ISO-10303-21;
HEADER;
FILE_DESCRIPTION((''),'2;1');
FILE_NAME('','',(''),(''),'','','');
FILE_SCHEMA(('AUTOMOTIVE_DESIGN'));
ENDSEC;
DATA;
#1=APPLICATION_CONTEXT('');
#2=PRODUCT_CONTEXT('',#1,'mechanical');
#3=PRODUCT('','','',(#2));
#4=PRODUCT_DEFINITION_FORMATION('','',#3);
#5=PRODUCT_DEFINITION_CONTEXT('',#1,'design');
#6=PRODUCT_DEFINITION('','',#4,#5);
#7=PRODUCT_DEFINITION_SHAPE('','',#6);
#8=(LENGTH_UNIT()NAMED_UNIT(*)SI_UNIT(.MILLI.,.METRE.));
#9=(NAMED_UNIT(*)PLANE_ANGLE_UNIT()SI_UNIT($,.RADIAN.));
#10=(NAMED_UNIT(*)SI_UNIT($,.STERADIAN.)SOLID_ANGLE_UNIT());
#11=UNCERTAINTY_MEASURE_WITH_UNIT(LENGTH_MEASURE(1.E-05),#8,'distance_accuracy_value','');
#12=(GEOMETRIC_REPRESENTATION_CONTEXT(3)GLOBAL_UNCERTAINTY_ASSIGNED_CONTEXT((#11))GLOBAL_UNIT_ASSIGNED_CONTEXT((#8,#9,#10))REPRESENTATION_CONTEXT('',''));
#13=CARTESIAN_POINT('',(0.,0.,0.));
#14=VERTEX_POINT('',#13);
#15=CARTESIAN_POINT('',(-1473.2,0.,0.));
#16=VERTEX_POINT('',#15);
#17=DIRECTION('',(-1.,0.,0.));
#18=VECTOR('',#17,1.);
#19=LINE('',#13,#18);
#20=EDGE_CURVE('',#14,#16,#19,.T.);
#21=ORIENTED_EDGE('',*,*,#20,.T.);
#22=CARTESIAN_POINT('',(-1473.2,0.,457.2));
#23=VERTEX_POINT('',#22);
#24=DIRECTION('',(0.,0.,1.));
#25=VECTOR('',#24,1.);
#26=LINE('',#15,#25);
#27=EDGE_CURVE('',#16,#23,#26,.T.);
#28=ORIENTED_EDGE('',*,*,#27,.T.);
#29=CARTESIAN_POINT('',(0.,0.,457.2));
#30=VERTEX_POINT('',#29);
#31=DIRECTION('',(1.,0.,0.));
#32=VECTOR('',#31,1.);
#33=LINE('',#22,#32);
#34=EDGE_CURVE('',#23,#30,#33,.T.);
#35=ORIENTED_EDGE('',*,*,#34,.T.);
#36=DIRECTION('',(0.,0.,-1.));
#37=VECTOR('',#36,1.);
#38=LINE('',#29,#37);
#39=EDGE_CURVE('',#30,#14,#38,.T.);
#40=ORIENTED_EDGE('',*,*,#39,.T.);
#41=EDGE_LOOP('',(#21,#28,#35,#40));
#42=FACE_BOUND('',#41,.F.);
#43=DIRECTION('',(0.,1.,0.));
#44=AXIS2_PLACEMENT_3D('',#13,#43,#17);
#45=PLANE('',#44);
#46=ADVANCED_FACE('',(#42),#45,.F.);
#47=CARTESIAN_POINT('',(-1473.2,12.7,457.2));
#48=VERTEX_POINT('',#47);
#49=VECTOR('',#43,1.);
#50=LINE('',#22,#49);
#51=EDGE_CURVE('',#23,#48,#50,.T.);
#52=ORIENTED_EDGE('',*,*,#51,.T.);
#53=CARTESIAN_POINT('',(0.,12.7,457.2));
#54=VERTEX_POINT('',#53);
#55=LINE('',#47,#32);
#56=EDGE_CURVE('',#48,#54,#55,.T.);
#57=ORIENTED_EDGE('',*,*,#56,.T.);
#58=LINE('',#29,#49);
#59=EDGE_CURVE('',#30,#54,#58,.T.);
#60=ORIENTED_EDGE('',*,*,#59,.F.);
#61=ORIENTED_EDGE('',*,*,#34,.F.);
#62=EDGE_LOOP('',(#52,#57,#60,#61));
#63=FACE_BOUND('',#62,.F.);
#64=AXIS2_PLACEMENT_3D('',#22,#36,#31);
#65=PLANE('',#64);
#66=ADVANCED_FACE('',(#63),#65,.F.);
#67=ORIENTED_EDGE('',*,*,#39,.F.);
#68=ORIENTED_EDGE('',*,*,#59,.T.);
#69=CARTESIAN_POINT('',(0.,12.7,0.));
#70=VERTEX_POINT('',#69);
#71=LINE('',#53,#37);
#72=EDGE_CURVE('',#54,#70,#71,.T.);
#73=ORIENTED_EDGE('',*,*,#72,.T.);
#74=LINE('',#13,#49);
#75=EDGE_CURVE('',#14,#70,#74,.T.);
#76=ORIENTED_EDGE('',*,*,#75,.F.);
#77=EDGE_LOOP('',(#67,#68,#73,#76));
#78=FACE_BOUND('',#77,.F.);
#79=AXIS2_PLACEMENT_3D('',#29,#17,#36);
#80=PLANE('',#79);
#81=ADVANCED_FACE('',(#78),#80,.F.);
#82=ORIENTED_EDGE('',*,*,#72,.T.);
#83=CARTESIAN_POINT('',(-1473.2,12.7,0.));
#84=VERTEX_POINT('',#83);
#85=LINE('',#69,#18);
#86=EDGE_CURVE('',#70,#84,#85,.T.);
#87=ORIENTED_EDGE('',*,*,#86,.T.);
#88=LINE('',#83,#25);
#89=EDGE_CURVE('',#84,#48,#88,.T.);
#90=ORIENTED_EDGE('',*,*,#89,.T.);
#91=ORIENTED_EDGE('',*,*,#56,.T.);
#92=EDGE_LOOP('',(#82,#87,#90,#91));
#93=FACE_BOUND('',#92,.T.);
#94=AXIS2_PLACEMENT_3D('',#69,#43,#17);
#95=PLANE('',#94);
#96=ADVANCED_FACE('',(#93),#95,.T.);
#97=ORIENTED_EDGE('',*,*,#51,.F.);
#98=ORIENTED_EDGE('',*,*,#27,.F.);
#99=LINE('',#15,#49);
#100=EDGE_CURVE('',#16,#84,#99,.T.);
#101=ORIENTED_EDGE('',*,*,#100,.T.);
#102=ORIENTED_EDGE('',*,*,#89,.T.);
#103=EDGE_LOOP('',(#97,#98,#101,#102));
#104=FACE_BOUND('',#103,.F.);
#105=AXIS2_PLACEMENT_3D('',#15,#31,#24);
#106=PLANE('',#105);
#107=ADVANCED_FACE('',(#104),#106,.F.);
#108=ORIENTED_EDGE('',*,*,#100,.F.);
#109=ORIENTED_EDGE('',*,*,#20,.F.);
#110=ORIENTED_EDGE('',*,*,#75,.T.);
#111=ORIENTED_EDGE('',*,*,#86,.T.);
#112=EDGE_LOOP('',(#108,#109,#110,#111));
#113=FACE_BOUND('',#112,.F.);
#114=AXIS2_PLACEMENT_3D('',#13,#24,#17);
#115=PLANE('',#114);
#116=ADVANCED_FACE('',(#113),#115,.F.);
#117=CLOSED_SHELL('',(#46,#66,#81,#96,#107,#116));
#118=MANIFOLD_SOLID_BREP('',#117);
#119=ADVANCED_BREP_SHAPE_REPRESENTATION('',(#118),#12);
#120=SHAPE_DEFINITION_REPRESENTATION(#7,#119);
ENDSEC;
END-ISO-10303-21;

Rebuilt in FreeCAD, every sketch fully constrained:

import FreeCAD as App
import Part
import Sketcher

V = App.Vector
Q = App.Units.Quantity

doc = App.newDocument("Part")
body = doc.addObject("PartDesign::Body", "Body")

# Sketch on XZ plane
sketch1 = doc.addObject("Sketcher::SketchObject", "Sketch")
body.addObject(sketch1)
sketch1.AttachmentSupport = (doc.XZ_Plane, [""])
sketch1.MapMode = "FlatFace"
sketch1.addGeometry(Part.LineSegment(V(0, 457, 0), V(0, 0, 0)), False)
sketch1.addGeometry(Part.LineSegment(V(0, 0, 0), V(-1473, 0, 0)), False)
sketch1.addGeometry(Part.LineSegment(V(-1473, 0, 0), V(-1473, 457, 0)), False)
sketch1.addGeometry(Part.LineSegment(V(-1473, 457, 0), V(0, 457, 0)), False)
sketch1.addConstraint(Sketcher.Constraint("Coincident", 0, 2, 1, 1))
sketch1.addConstraint(Sketcher.Constraint("Coincident", 1, 2, 2, 1))
sketch1.addConstraint(Sketcher.Constraint("Coincident", 2, 2, 3, 1))
sketch1.addConstraint(Sketcher.Constraint("Coincident", 3, 2, 0, 1))
sketch1.addConstraint(Sketcher.Constraint("Vertical", 0))
sketch1.addConstraint(Sketcher.Constraint("Horizontal", 1))
sketch1.addConstraint(Sketcher.Constraint("Vertical", 2))
sketch1.addConstraint(Sketcher.Constraint("Horizontal", 3))
sketch1.addConstraint(Sketcher.Constraint("Coincident", 0, 2, -1, 1))
sketch1.addConstraint(Sketcher.Constraint("DistanceX", 1, 2, 1, 1, Q("58 in")))
sketch1.addConstraint(Sketcher.Constraint("DistanceY", 0, 2, 0, 1, Q("18 in")))
pad1 = doc.addObject("PartDesign::Pad", "Pad")
body.addObject(pad1)
pad1.Profile = sketch1
pad1.Length = Q("0.5 in")
pad1.Reversed = True

doc.recompute()
